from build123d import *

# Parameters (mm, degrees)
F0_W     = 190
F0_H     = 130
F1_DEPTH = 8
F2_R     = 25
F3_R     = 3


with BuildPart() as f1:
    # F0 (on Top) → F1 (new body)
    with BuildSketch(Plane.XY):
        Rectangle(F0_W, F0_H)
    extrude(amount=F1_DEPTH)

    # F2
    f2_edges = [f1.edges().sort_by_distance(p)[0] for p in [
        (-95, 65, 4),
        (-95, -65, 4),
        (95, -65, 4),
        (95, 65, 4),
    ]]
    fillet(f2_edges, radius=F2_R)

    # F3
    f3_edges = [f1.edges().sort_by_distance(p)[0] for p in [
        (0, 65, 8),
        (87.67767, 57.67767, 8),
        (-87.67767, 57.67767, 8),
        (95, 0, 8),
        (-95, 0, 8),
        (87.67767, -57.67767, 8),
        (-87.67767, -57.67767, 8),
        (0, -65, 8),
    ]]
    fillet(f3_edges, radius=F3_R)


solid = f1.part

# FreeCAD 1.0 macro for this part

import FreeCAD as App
import Part
import Sketcher

V = App.Vector
Q = App.Units.Quantity


def edges_at(feature, points):
    """Names of the edges that pass closest to the given points."""
    edges = feature.Shape.Edges
    near = lambda p: min(range(len(edges)), key=lambda i: edges[i].distToShape(Part.Vertex(*p))[0])
    return sorted({f"Edge{near(p) + 1}" for p in points})


def add_polygon(sketch, points):
    """Adds a closed chain of lines whose ends are joined by coincident constraints."""
    first, n = sketch.GeometryCount, len(points)
    for a, b in zip(points, points[1:] + points[:1]):
        sketch.addGeometry(Part.LineSegment(App.Vector(*a, 0), App.Vector(*b, 0)), False)
    for i in range(n):
        sketch.addConstraint(Sketcher.Constraint("Coincident", first + i, 2, first + (i + 1) % n, 1))

doc = App.newDocument("Part")
body = doc.addObject("PartDesign::Body", "Body")

# Sketch on XY plane
sketch1 = body.newObject("Sketcher::SketchObject", "Sketch")
sketch1.AttachmentSupport = (doc.getObject("XY_Plane"), [""])
sketch1.MapMode = "FlatFace"
add_polygon(sketch1, [(-95, 65), (-95, -65), (95, -65), (95, 65)])  # lines 0-3
sketch1.addConstraint([
    Sketcher.Constraint("Vertical", 0),
    Sketcher.Constraint("Horizontal", 1),
    Sketcher.Constraint("Vertical", 2),
    Sketcher.Constraint("Horizontal", 3),
    Sketcher.Constraint("Symmetric", 0, 2, 2, 2, -1, 1),
    Sketcher.Constraint("DistanceX", 1, 1, 1, 2, Q("190 mm")),
    Sketcher.Constraint("DistanceY", 0, 2, 0, 1, Q("130 mm")),
])
pad1 = body.newObject("PartDesign::Pad", "Pad")
pad1.Profile = sketch1
pad1.Length = 8
doc.recompute()

fillet = body.newObject("PartDesign::Fillet", "Fillet")
fillet.Base = (pad1, edges_at(pad1, [
    (-95, 65, 4),
    (-95, -65, 4),
    (95, -65, 4),
    (95, 65, 4),
]))
fillet.Radius = 25
doc.recompute()

fillet2 = body.newObject("PartDesign::Fillet", "Fillet001")
fillet2.Base = (fillet, edges_at(fillet, [
    (0, 65, 8),
    (87.678, 57.678, 8),
    (-87.678, 57.678, 8),
    (95, 0, 8),
    (-95, 0, 8),
    (87.678, -57.678, 8),
    (-87.678, -57.678, 8),
    (0, -65, 8),
]))
fillet2.Radius = 3

doc.recompute()
